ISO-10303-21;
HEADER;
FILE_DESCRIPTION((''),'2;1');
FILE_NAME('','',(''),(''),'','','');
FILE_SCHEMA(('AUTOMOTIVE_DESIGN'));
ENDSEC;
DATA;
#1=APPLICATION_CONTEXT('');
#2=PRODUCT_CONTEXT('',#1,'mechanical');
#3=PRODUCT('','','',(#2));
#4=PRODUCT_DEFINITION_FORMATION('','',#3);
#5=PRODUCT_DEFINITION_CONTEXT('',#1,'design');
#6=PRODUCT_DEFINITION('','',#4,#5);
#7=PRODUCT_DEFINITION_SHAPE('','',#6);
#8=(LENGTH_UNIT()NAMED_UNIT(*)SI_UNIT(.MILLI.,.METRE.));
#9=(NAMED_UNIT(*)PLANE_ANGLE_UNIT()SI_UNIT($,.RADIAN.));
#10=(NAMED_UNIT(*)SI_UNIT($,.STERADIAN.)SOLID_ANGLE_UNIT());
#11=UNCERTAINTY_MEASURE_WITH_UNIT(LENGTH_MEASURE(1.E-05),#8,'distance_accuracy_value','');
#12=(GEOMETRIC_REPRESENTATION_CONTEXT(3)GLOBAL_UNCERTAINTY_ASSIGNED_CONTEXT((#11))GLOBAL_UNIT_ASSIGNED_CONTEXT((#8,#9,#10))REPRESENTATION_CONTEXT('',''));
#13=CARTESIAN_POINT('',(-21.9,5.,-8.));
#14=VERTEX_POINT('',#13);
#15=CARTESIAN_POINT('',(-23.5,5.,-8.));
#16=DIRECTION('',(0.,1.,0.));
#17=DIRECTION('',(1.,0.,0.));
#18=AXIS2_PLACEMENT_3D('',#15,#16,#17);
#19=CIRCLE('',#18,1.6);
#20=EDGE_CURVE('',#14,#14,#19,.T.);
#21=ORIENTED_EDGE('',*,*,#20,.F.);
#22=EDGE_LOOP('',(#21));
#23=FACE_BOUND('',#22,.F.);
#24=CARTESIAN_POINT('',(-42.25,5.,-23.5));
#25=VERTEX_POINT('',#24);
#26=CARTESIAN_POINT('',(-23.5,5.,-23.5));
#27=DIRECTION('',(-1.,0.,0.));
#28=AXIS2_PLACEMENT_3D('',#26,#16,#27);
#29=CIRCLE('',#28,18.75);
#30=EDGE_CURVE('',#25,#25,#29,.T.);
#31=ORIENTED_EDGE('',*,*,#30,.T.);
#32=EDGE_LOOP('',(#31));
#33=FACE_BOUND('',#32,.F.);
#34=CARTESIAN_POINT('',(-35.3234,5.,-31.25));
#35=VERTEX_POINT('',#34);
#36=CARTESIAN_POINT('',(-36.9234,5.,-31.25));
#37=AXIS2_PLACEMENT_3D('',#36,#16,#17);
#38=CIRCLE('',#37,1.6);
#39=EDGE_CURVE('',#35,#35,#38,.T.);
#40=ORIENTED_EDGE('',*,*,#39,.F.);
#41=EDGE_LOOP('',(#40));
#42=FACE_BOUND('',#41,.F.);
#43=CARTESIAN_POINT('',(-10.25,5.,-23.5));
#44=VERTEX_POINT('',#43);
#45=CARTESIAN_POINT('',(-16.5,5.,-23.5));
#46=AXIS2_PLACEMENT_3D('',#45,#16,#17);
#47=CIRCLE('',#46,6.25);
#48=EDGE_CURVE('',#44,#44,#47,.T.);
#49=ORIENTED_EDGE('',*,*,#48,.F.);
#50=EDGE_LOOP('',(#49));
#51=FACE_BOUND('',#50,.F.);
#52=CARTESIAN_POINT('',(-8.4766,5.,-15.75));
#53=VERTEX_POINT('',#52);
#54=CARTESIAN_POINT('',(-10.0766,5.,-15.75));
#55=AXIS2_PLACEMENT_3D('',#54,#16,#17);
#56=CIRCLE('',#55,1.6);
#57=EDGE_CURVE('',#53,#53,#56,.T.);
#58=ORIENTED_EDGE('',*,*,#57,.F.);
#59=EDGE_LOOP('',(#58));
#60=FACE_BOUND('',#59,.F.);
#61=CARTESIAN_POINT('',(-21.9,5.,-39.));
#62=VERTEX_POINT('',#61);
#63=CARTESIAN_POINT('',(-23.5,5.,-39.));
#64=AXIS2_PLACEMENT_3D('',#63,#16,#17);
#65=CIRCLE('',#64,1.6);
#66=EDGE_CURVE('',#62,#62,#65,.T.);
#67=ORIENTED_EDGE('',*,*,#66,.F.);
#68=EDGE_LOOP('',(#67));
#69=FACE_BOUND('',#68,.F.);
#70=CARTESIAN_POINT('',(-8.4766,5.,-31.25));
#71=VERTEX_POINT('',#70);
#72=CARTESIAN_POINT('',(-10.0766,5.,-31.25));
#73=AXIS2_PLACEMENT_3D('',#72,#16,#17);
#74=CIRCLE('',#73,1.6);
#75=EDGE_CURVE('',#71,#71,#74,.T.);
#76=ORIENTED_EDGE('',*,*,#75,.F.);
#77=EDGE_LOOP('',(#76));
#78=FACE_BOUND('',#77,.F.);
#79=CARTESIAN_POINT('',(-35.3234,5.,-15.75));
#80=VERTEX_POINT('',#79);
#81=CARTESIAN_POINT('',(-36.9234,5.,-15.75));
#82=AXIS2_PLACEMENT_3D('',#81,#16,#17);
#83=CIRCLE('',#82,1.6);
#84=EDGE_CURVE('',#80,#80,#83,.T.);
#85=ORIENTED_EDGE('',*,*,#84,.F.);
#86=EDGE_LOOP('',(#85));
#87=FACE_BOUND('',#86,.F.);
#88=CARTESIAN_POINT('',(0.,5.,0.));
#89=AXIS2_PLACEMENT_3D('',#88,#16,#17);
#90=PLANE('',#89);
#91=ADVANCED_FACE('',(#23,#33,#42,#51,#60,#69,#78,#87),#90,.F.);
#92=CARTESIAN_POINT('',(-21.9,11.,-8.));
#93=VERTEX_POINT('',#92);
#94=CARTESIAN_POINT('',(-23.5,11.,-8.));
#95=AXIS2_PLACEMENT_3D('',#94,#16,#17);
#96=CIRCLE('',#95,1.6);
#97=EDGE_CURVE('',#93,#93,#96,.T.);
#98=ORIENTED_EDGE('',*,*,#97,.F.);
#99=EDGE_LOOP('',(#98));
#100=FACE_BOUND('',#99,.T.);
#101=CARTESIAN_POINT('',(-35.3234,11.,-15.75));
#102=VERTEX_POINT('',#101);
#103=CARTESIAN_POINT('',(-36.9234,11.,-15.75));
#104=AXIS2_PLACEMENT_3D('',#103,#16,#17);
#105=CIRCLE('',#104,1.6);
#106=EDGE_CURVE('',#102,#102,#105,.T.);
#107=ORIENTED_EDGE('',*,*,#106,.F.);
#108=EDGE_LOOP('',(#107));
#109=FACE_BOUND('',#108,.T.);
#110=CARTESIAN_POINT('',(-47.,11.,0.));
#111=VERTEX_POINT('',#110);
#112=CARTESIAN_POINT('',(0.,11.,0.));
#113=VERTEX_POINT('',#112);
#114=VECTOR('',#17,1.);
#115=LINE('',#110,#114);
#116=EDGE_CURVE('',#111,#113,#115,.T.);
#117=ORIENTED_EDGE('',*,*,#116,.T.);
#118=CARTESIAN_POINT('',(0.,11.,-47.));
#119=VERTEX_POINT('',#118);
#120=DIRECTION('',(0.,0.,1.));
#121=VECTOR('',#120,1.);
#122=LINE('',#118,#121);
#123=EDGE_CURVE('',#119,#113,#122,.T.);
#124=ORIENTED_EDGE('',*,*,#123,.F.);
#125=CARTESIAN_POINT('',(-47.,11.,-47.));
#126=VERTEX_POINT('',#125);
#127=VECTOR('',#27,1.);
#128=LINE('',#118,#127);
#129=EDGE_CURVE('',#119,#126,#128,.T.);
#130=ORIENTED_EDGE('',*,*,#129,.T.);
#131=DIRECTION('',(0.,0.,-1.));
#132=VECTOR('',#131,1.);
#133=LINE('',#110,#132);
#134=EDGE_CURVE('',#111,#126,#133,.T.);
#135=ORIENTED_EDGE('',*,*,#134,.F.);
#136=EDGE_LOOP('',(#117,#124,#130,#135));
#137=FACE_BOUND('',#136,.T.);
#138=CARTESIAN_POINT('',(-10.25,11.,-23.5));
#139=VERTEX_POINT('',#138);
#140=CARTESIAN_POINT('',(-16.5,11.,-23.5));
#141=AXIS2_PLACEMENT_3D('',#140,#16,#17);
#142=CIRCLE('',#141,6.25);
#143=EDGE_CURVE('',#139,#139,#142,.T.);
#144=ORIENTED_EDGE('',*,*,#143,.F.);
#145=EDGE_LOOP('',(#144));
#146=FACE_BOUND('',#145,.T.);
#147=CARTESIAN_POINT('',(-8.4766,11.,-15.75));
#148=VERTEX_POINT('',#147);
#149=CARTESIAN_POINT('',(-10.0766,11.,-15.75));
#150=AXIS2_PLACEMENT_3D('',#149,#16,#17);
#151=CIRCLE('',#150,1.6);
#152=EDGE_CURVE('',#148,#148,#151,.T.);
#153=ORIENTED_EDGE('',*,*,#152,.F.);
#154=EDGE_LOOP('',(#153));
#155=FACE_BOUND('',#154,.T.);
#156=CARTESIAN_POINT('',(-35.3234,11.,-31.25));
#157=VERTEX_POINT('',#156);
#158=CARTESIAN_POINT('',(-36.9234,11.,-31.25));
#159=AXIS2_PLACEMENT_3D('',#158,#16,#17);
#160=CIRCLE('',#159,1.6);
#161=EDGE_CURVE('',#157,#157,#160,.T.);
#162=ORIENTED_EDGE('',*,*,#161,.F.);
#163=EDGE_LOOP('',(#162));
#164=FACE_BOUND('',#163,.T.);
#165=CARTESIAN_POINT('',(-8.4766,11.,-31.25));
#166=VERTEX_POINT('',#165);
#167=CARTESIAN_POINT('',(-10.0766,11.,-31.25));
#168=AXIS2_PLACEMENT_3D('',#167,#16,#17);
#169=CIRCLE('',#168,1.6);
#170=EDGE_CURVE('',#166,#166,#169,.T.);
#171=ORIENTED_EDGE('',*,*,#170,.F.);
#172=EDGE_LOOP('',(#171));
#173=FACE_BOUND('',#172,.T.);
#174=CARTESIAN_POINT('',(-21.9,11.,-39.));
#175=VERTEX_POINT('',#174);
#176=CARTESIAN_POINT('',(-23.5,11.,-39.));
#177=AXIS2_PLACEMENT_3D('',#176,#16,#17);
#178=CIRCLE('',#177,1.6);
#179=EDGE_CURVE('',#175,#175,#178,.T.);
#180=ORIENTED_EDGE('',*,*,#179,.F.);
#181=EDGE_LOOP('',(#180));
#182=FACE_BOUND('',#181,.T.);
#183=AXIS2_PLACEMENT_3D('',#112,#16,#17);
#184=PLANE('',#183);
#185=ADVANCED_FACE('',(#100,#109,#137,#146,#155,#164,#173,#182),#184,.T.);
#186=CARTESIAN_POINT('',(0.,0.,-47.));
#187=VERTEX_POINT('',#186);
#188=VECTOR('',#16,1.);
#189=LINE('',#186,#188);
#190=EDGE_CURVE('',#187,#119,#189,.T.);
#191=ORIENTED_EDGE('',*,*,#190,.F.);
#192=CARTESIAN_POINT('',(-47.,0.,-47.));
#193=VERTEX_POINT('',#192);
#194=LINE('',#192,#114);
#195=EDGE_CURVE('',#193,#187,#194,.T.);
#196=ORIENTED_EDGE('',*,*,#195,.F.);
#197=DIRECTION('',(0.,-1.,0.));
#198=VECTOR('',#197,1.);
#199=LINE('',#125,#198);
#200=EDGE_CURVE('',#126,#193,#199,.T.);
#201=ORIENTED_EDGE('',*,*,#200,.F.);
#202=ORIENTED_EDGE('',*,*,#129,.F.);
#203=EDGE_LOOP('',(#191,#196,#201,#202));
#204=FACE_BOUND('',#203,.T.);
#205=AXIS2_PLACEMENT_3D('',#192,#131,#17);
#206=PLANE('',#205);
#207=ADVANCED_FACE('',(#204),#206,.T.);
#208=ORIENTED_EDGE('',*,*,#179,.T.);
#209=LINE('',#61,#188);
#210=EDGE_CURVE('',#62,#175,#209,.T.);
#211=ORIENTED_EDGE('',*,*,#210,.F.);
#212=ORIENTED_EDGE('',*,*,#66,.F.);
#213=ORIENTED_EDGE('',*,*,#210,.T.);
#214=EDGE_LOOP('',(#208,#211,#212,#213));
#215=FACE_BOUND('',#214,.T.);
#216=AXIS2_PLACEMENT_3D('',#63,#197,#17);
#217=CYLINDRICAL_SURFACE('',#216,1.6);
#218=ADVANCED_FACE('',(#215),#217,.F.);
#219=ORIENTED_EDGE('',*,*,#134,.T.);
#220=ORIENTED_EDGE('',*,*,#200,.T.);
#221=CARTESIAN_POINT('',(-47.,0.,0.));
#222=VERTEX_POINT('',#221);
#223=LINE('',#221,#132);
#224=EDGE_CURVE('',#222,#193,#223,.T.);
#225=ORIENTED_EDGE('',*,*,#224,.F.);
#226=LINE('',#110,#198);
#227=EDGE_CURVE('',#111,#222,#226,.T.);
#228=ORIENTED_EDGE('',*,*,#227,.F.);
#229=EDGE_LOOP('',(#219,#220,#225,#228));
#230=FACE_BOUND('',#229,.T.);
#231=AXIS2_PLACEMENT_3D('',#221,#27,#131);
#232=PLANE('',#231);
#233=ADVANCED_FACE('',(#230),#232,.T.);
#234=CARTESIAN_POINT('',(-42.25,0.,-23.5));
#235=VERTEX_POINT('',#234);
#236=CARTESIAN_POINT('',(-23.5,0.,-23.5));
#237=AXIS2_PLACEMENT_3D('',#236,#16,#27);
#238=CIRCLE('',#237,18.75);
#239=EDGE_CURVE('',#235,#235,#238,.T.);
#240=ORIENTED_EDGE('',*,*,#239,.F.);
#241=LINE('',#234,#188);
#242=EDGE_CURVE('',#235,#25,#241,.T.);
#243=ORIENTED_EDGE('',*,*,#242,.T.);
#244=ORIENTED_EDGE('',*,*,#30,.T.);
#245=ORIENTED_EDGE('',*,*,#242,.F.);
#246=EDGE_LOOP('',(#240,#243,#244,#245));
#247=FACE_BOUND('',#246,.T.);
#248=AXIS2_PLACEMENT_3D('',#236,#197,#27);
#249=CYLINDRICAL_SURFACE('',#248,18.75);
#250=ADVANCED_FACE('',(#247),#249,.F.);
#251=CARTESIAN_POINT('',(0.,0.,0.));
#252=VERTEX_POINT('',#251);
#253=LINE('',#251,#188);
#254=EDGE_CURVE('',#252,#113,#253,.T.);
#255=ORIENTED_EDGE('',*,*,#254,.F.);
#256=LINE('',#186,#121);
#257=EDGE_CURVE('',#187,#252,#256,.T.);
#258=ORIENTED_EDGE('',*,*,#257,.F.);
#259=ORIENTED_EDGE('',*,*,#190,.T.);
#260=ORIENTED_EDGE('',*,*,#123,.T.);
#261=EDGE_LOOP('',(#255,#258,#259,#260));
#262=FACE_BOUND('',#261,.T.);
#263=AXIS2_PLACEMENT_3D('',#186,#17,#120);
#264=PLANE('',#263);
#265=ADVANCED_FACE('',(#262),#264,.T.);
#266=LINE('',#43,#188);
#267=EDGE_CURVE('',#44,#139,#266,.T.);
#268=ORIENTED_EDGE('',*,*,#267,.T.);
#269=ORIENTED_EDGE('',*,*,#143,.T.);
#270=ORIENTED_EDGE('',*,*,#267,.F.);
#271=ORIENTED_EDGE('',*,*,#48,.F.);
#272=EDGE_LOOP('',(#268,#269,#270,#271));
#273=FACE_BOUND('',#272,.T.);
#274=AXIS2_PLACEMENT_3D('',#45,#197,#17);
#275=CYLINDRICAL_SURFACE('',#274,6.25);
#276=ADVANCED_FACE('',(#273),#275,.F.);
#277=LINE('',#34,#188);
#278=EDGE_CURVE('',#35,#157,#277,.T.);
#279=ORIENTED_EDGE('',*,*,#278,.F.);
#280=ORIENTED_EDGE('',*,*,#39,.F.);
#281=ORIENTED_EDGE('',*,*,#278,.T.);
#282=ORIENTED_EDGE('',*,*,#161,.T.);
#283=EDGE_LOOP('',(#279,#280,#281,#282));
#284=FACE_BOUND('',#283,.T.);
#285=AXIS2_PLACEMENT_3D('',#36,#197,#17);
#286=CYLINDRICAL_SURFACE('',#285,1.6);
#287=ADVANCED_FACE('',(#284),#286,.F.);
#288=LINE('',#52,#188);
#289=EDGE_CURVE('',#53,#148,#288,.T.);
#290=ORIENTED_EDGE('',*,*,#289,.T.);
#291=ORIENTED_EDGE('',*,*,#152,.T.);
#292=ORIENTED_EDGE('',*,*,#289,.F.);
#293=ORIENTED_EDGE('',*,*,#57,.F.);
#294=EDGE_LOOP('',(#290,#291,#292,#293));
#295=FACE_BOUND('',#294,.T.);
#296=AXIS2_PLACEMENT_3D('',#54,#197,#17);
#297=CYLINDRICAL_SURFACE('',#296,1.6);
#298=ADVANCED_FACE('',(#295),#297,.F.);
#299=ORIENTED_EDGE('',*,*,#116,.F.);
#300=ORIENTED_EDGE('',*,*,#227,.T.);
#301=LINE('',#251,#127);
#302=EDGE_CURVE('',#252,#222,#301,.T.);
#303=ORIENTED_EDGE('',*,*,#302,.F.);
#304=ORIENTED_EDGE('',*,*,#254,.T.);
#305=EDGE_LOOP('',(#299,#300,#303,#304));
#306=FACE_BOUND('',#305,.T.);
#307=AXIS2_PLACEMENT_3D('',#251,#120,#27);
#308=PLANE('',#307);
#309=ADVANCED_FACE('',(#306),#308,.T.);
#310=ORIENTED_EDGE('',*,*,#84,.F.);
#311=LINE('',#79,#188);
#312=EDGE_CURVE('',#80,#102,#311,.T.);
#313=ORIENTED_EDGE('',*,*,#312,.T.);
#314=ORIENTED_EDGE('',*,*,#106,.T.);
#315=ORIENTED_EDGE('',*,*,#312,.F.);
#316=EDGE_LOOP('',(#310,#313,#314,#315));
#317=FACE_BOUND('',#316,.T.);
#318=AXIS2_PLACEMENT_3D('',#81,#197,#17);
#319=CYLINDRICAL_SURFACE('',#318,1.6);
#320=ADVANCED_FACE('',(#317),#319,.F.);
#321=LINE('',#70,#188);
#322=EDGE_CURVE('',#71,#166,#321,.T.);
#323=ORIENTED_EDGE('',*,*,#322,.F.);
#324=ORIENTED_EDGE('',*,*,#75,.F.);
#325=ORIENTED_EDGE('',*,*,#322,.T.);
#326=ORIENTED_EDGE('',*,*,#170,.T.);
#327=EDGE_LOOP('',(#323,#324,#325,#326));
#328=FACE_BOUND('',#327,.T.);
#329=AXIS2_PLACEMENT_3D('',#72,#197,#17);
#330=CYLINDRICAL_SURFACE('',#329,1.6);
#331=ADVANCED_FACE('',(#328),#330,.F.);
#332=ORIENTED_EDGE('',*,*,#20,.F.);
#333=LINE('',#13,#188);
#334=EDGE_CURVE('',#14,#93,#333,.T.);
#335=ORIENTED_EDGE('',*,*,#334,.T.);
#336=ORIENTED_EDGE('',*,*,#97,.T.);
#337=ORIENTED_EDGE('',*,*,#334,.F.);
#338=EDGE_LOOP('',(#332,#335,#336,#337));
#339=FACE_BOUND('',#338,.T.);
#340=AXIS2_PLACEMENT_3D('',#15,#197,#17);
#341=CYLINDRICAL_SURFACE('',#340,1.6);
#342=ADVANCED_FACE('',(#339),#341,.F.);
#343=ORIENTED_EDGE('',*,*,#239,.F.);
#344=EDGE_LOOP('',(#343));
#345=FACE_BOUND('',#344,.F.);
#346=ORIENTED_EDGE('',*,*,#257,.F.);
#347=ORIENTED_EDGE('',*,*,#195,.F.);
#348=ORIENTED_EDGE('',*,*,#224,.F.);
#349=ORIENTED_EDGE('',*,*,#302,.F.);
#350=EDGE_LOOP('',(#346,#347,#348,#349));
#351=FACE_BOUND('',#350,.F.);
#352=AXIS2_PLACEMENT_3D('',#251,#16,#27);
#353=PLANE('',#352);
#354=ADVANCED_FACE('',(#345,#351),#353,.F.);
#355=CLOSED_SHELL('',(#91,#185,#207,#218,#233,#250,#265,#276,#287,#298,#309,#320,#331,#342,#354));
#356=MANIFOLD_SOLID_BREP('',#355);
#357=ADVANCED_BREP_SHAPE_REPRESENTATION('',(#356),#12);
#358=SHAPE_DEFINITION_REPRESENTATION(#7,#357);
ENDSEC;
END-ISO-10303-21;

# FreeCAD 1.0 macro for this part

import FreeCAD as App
import Part
import Sketcher
Q = App.Units.Quantity


def add_polygon(sketch, points):
    """Adds a closed chain of lines whose ends are joined by coincident constraints."""
    first, n = sketch.GeometryCount, len(points)
    for a, b in zip(points, points[1:] + points[:1]):
        sketch.addGeometry(Part.LineSegment(App.Vector(*a, 0), App.Vector(*b, 0)), False)
    for i in range(n):
        sketch.addConstraint(Sketcher.Constraint("Coincident", first + i, 2, first + (i + 1) % n, 1))

doc = App.newDocument("Part")
body = doc.addObject("PartDesign::Body", "Body")

# Sketch on XZ plane
sketch1 = body.newObject("Sketcher::SketchObject", "Sketch")
sketch1.AttachmentSupport = (doc.getObject("XZ_Plane"), [""])
sketch1.MapMode = "FlatFace"
add_polygon(sketch1, [(-47, 0), (0, 0), (0, -47), (-47, -47)])  # lines 0-3
sketch1.addGeometry(Part.Circle(App.Vector(-23.5, -23.5, 0), App.Vector(0, 0, 1), 18.75), False)  # 4
sketch1.addConstraint([
    Sketcher.Constraint("Horizontal", 0),
    Sketcher.Constraint("Vertical", 1),
    Sketcher.Constraint("Horizontal", 2),
    Sketcher.Constraint("Vertical", 3),
    Sketcher.Constraint("Coincident", 0, 2, -1, 1),
    Sketcher.Constraint("Equal", 2, 1),
    Sketcher.Constraint("Diameter", 4, Q("37.5 mm")),
    Sketcher.Constraint("DistanceX", 0, 1, 0, 2, Q("47 mm")),
    Sketcher.Constraint("DistanceX", 4, 3, -1, 1, Q("23.5 mm")),
    Sketcher.Constraint("DistanceY", 4, 3, -1, 1, Q("23.5 mm")),
])
pad1 = body.newObject("PartDesign::Pad", "Pad")
pad1.Profile = sketch1
pad1.Length = 5
pad1.Reversed = True

# Sketch on XZ plane
sketch2 = body.newObject("Sketcher::SketchObject", "Sketch001")
sketch2.AttachmentSupport = (doc.getObject("XZ_Plane"), [""])
sketch2.MapMode = "FlatFace"
sketch2.AttachmentOffset = App.Placement(App.Vector(0, 0, -5), App.Rotation())
add_polygon(sketch2, [(-47, -47), (-47, 0), (0, 0), (0, -47)])  # lines 0-3
sketch2.addGeometry(Part.Circle(App.Vector(-36.9234, -15.75, 0), App.Vector(0, 0, 1), 1.6), False)  # 4
sketch2.addGeometry(Part.Circle(App.Vector(-23.5, -8, 0), App.Vector(0, 0, 1), 1.6), False)  # 5
sketch2.addGeometry(Part.Circle(App.Vector(-10.0766, -15.75, 0), App.Vector(0, 0, 1), 1.6), False)  # 6
sketch2.addGeometry(Part.Circle(App.Vector(-36.9234, -31.25, 0), App.Vector(0, 0, 1), 1.6), False)  # 7
sketch2.addGeometry(Part.Circle(App.Vector(-16.5, -23.5, 0), App.Vector(0, 0, 1), 6.25), False)  # 8
sketch2.addGeometry(Part.Circle(App.Vector(-10.0766, -31.25, 0), App.Vector(0, 0, 1), 1.6), False)  # 9
sketch2.addGeometry(Part.Circle(App.Vector(-23.5, -39, 0), App.Vector(0, 0, 1), 1.6), False)  # 10
sketch2.addConstraint([
    Sketcher.Constraint("Vertical", 0),
    Sketcher.Constraint("Horizontal", 1),
    Sketcher.Constraint("Vertical", 2),
    Sketcher.Constraint("Horizontal", 3),
    Sketcher.Constraint("Coincident", 1, 2, -1, 1),
    Sketcher.Constraint("Equal", 4, 5),
    Sketcher.Constraint("Equal", 5, 6),
    Sketcher.Constraint("Equal", 6, 7),
    Sketcher.Constraint("Equal", 7, 9),
    Sketcher.Constraint("Equal", 9, 10),
    Sketcher.Constraint("Horizontal", 4, 3, 6, 3),
    Sketcher.Constraint("Horizontal", 7, 3, 9, 3),
    Sketcher.Constraint("Vertical", 4, 3, 7, 3),
    Sketcher.Constraint("Vertical", 6, 3, 9, 3),
    Sketcher.Constraint("Vertical", 5, 3, 10, 3),
    Sketcher.Constraint("Equal", 3, 0),
    Sketcher.Constraint("Diameter", 4, Q("3.2 mm")),
    Sketcher.Constraint("Diameter", 8, Q("12.5 mm")),
    Sketcher.Constraint("DistanceX", 5, 3, 8, 3, Q("7 mm")),
    Sketcher.Constraint("DistanceX", 5, 3, -1, 1, Q("23.5 mm")),
    Sketcher.Constraint("DistanceY", 8, 3, -1, 1, Q("23.5 mm")),
    Sketcher.Constraint("DistanceY", 7, 3, 4, 3, Q("15.5 mm")),
    Sketcher.Constraint("DistanceY", 8, 3, 5, 3, Q("15.5 mm")),
    Sketcher.Constraint("DistanceY", 10, 3, 8, 3, Q("15.5 mm")),
    Sketcher.Constraint("DistanceX", 0, 2, 5, 3, Q("23.5 mm")),
    Sketcher.Constraint("DistanceY", 4, 3, -1, 1, Q("15.75 mm")),
    Sketcher.Constraint("DistanceX", 4, 3, -1, 1, Q("36.9234 mm")),
    Sketcher.Constraint("DistanceX", 6, 3, -1, 1, Q("10.0766 mm")),
])
pad2 = body.newObject("PartDesign::Pad", "Pad001")
pad2.Profile = sketch2
pad2.Length = 6
pad2.Reversed = True

doc.recompute()
